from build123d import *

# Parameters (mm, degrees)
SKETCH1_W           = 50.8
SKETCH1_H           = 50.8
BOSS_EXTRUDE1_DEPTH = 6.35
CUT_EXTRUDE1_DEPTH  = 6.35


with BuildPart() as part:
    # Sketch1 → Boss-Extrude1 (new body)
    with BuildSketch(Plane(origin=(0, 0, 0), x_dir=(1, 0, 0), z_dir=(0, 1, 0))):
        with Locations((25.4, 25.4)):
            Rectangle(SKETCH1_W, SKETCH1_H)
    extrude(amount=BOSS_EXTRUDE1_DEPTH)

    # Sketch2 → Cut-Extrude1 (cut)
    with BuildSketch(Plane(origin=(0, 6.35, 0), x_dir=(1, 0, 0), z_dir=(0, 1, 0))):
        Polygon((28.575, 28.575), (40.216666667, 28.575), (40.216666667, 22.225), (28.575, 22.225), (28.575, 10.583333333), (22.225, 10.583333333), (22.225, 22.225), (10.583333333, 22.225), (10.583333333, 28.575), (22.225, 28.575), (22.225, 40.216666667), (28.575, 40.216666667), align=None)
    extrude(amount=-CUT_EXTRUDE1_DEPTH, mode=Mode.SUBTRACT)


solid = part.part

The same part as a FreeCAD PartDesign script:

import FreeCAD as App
import Part
import Sketcher
from FreeCAD import Vector
Q = App.Units.Quantity


def add_polygon(sketch, points):
    """Adds a closed chain of lines whose ends are joined by coincident constraints."""
    first, n = sketch.GeometryCount, len(points)
    for a, b in zip(points, points[1:] + points[:1]):
        sketch.addGeometry(Part.LineSegment(App.Vector(*a, 0), App.Vector(*b, 0)), False)
    for i in range(n):
        sketch.addConstraint(Sketcher.Constraint("Coincident", first + i, 2, first + (i + 1) % n, 1))

doc = App.newDocument("Part")
body = doc.addObject("PartDesign::Body", "Body")

# Sketch on XZ plane
sketch1 = body.newObject("Sketcher::SketchObject", "Sketch")
sketch1.AttachmentSupport = (doc.getObject("XZ_Plane"), [""])
sketch1.MapMode = "FlatFace"
add_polygon(sketch1, [(0, -50.8), (0, 0), (50.8, 0), (50.8, -50.8)])  # lines 0-3
sketch1.addConstraint(Sketcher.Constraint("Vertical", 0))
sketch1.addConstraint(Sketcher.Constraint("Horizontal", 1))
sketch1.addConstraint(Sketcher.Constraint("Vertical", 2))
sketch1.addConstraint(Sketcher.Constraint("Horizontal", 3))
sketch1.addConstraint(Sketcher.Constraint("Coincident", 0, 2, -1, 1))
sketch1.addConstraint(Sketcher.Constraint("Equal", 3, 0))
sketch1.addConstraint(Sketcher.Constraint("DistanceX", 1, 1, 1, 2, Q("2 in")))
pad1 = body.newObject("PartDesign::Pad", "Pad")
pad1.Profile = sketch1
pad1.Length = Q("0.25 in")
pad1.Reversed = True

# Sketch on XZ plane
sketch2 = body.newObject("Sketcher::SketchObject", "Sketch001")
sketch2.AttachmentSupport = (doc.getObject("XZ_Plane"), [""])
sketch2.MapMode = "FlatFace"
sketch2.AttachmentOffset = App.Placement(Vector(0, 0, -0.25 * 25.4), App.Rotation())
add_polygon(sketch2, [(40.216667, -28.575), (28.575, -28.575), (28.575, -40.216667), (22.225, -40.216667), (22.225, -28.575), (10.583333, -28.575), (10.583333, -22.225), (22.225, -22.225), (22.225, -10.583333), (28.575, -10.583333), (28.575, -22.225), (40.216667, -22.225)])  # lines 0-11
sketch2.addConstraint(Sketcher.Constraint("Horizontal", 0))
sketch2.addConstraint(Sketcher.Constraint("Vertical", 1))
sketch2.addConstraint(Sketcher.Constraint("Horizontal", 2))
sketch2.addConstraint(Sketcher.Constraint("Vertical", 3))
sketch2.addConstraint(Sketcher.Constraint("Horizontal", 4))
sketch2.addConstraint(Sketcher.Constraint("Vertical", 5))
sketch2.addConstraint(Sketcher.Constraint("Horizontal", 6))
sketch2.addConstraint(Sketcher.Constraint("Vertical", 7))
sketch2.addConstraint(Sketcher.Constraint("Horizontal", 8))
sketch2.addConstraint(Sketcher.Constraint("Vertical", 9))
sketch2.addConstraint(Sketcher.Constraint("Horizontal", 10))
sketch2.addConstraint(Sketcher.Constraint("Vertical", 11))
sketch2.addConstraint(Sketcher.Constraint("Horizontal", 0, 2, 3, 2))
sketch2.addConstraint(Sketcher.Constraint("Horizontal", 6, 2, 9, 2))
sketch2.addConstraint(Sketcher.Constraint("Vertical", 3, 2, 6, 2))
sketch2.addConstraint(Sketcher.Constraint("Vertical", 1, 2, 8, 2))
sketch2.addConstraint(Sketcher.Constraint("Equal", 0, 4))
sketch2.addConstraint(Sketcher.Constraint("Equal", 10, 1))
sketch2.addConstraint(Sketcher.Constraint("Equal", 8, 5))
sketch2.addConstraint(Sketcher.Constraint("Equal", 3, 7))
sketch2.addConstraint(Sketcher.Constraint("DistanceX", 2, 2, 2, 1, Q("0.25 in")))
sketch2.addConstraint(Sketcher.Constraint("DistanceX", -1, 1, 0, 2, Q("1.125 in")))
sketch2.addConstraint(Sketcher.Constraint("DistanceY", 0, 2, -1, 1, Q("1.125 in")))
sketch2.addConstraint(Sketcher.Constraint("DistanceX", 0, 2, 0, 1, 11.641667))
pocket1 = body.newObject("PartDesign::Pocket", "Pocket")
pocket1.Profile = sketch2
pocket1.Length = Q("0.25 in")
pocket1.Reversed = True

doc.recompute()
